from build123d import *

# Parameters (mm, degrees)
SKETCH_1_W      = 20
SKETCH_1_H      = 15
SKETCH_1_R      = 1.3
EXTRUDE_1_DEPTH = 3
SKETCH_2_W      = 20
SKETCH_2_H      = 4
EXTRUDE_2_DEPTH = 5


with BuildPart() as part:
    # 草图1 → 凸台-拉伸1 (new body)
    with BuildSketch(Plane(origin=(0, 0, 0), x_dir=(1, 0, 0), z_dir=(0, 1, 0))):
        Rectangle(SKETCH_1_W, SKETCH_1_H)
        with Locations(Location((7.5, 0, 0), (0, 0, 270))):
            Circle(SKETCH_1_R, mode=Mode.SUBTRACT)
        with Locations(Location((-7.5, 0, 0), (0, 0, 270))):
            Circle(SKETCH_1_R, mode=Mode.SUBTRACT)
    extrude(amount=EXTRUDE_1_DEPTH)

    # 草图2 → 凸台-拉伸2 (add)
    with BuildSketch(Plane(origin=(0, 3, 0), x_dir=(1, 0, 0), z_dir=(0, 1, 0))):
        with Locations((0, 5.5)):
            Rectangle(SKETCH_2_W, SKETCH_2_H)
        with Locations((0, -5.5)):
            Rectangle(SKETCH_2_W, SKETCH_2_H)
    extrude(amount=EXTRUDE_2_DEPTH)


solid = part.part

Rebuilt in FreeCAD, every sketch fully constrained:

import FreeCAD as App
import Part
import Sketcher
from FreeCAD import Vector

doc = App.newDocument("Part")
body = doc.addObject("PartDesign::Body", "Body")

sketch1 = body.newObject("Sketcher::SketchObject", "Sketch")
sketch1.AttachmentSupport = (doc.getObject("XZ_Plane"), [""])
sketch1.MapMode = "FlatFace"
sketch1.addGeometry([
    Part.LineSegment(Vector(-10, -7.5, 0), Vector(-10, 7.5, 0)),
    Part.LineSegment(Vector(-10, 7.5, 0), Vector(10, 7.5, 0)),
    Part.LineSegment(Vector(10, 7.5, 0), Vector(10, -7.5, 0)),
    Part.LineSegment(Vector(10, -7.5, 0), Vector(-10, -7.5, 0)),
    Part.Circle(Vector(-7.5, 0, 0), Vector(0, 0, 1), 1.3),
    Part.Circle(Vector(7.5, 0, 0), Vector(0, 0, 1), 1.3),
], False)
sketch1.addConstraint([
    Sketcher.Constraint("Coincident", 0, 2, 1, 1),
    Sketcher.Constraint("Coincident", 1, 2, 2, 1),
    Sketcher.Constraint("Coincident", 2, 2, 3, 1),
    Sketcher.Constraint("Coincident", 3, 2, 0, 1),
    Sketcher.Constraint("Vertical", 0),
    Sketcher.Constraint("Horizontal", 1),
    Sketcher.Constraint("Vertical", 2),
    Sketcher.Constraint("Horizontal", 3),
    Sketcher.Constraint("Equal", 4, 5),
    Sketcher.Constraint("Symmetric", 4, 3, 5, 3, -1, 1),
    Sketcher.Constraint("Symmetric", 0, 2, 2, 2, -1, 1),
    Sketcher.Constraint("PointOnObject", 4, 3, -1),
    Sketcher.Constraint("Diameter", 4, 2.6),
    Sketcher.Constraint("DistanceX", 1, 1, 1, 2, 20.0),
    Sketcher.Constraint("DistanceY", 0, 1, 0, 2, 15.0),
    Sketcher.Constraint("DistanceX", 4, 3, 5, 3, 15.0),
])
pad1 = body.newObject("PartDesign::Pad", "Pad")
pad1.Profile = sketch1
pad1.Length = 3
pad1.Reversed = True

sketch2 = body.newObject("Sketcher::SketchObject", "Sketch001")
sketch2.AttachmentSupport = (doc.getObject("XZ_Plane"), [""])
sketch2.MapMode = "FlatFace"
sketch2.AttachmentOffset = App.Placement(Vector(0, 0, -3), App.Rotation())
sketch2.addGeometry([
    Part.LineSegment(Vector(-10, -7.5, 0), Vector(-10, -3.5, 0)),
    Part.LineSegment(Vector(-10, -3.5, 0), Vector(10, -3.5, 0)),
    Part.LineSegment(Vector(10, -3.5, 0), Vector(10, -7.5, 0)),
    Part.LineSegment(Vector(10, -7.5, 0), Vector(-10, -7.5, 0)),
    Part.LineSegment(Vector(-10, 3.5, 0), Vector(-10, 7.5, 0)),
    Part.LineSegment(Vector(-10, 7.5, 0), Vector(10, 7.5, 0)),
    Part.LineSegment(Vector(10, 7.5, 0), Vector(10, 3.5, 0)),
    Part.LineSegment(Vector(10, 3.5, 0), Vector(-10, 3.5, 0)),
], False)
sketch2.addConstraint([
    Sketcher.Constraint("Coincident", 0, 2, 1, 1),
    Sketcher.Constraint("Coincident", 1, 2, 2, 1),
    Sketcher.Constraint("Coincident", 2, 2, 3, 1),
    Sketcher.Constraint("Coincident", 3, 2, 0, 1),
    Sketcher.Constraint("Coincident", 4, 2, 5, 1),
    Sketcher.Constraint("Coincident", 5, 2, 6, 1),
    Sketcher.Constraint("Coincident", 6, 2, 7, 1),
    Sketcher.Constraint("Coincident", 7, 2, 4, 1),
    Sketcher.Constraint("Vertical", 0),
    Sketcher.Constraint("Horizontal", 1),
    Sketcher.Constraint("Vertical", 2),
    Sketcher.Constraint("Horizontal", 3),
    Sketcher.Constraint("Vertical", 4),
    Sketcher.Constraint("Horizontal", 5),
    Sketcher.Constraint("Vertical", 6),
    Sketcher.Constraint("Horizontal", 7),
    Sketcher.Constraint("Symmetric", 2, 2, 4, 2, -1, 1),
    Sketcher.Constraint("Symmetric", 0, 2, 6, 2, -1, 1),
    Sketcher.Constraint("Vertical", 3, 2, 4, 2),
    Sketcher.Constraint("DistanceX", 1, 1, 1, 2, 20.0),
    Sketcher.Constraint("DistanceY", 0, 1, 0, 2, 4.0),
    Sketcher.Constraint("DistanceY", 0, 2, 4, 2, 11.0),
])
pad2 = body.newObject("PartDesign::Pad", "Pad001")
pad2.Profile = sketch2
pad2.Length = 5
pad2.Reversed = True

doc.recompute()
